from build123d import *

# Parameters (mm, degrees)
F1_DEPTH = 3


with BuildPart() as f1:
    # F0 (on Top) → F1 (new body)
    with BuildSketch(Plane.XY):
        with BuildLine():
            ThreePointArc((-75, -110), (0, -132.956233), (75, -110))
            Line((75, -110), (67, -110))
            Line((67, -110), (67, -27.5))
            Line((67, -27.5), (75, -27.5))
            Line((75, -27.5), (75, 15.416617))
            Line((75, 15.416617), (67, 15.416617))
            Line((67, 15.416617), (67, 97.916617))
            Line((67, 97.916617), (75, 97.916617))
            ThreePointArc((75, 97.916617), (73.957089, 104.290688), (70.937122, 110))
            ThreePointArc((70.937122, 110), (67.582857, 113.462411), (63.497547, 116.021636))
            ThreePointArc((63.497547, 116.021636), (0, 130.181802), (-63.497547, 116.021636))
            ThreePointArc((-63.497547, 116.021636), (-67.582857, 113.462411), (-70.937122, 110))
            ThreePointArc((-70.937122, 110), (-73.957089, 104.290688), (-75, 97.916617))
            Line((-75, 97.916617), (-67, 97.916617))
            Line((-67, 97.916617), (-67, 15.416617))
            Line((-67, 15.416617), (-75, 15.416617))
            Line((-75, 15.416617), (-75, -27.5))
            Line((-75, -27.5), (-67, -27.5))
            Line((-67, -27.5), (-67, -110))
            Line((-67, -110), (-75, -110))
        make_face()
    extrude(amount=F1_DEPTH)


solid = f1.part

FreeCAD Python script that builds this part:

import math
import FreeCAD as App
import Part
import Sketcher
from FreeCAD import Vector
Q = App.Units.Quantity

doc = App.newDocument("Part")
body = doc.addObject("PartDesign::Body", "Body")

# Sketch on XY plane
sketch1 = doc.addObject("Sketcher::SketchObject", "Sketch")
body.addObject(sketch1)
sketch1.AttachmentSupport = (doc.XY_Plane, [""])
sketch1.MapMode = "FlatFace"
sketch1.addGeometry([
    Part.ArcOfCircle(Part.Circle(Vector(0, 1, 0), Vector(0, 0, 1), 134), math.radians(-124), math.radians(-56)),  # 0
    Part.LineSegment(Vector(75, -110, 0), Vector(67, -110, 0)),  # 1
    Part.LineSegment(Vector(67, -110, 0), Vector(67, -28, 0)),  # 2
    Part.LineSegment(Vector(67, -28, 0), Vector(75, -28, 0)),  # 3
    Part.LineSegment(Vector(75, -28, 0), Vector(75, 15, 0)),  # 4
    Part.LineSegment(Vector(75, 15, 0), Vector(67, 15, 0)),  # 5
    Part.LineSegment(Vector(67, 15, 0), Vector(67, 98, 0)),  # 6
    Part.LineSegment(Vector(67, 98, 0), Vector(75, 98, 0)),  # 7
    Part.ArcOfCircle(Part.Circle(Vector(55, 98, 0), Vector(0, 0, 1), 20), math.radians(0), math.radians(37)),  # 8
    Part.ArcOfCircle(Part.Circle(Vector(55, 98, 0), Vector(0, 0, 1), 20), math.radians(37), math.radians(65)),  # 9
    Part.ArcOfCircle(Part.Circle(Vector(0, -19, 0), Vector(0, 0, 1), 149), math.radians(65), math.radians(115)),  # 10
    Part.ArcOfCircle(Part.Circle(Vector(-55, 98, 0), Vector(0, 0, 1), 20), math.radians(115), math.radians(143)),  # 11
    Part.ArcOfCircle(Part.Circle(Vector(-55, 98, 0), Vector(0, 0, 1), 20), math.radians(143), math.radians(180)),  # 12
    Part.LineSegment(Vector(-75, 98, 0), Vector(-67, 98, 0)),  # 13
    Part.LineSegment(Vector(-67, 98, 0), Vector(-67, 15, 0)),  # 14
    Part.LineSegment(Vector(-67, 15, 0), Vector(-75, 15, 0)),  # 15
    Part.LineSegment(Vector(-75, 15, 0), Vector(-75, -28, 0)),  # 16
    Part.LineSegment(Vector(-75, -28, 0), Vector(-67, -28, 0)),  # 17
    Part.LineSegment(Vector(-67, -28, 0), Vector(-67, -110, 0)),  # 18
    Part.LineSegment(Vector(-67, -110, 0), Vector(-75, -110, 0)),  # 19
], False)
sketch1.addConstraint([
    Sketcher.Constraint("Coincident", 0, 2, 1, 1),
    Sketcher.Constraint("Coincident", 1, 2, 2, 1),
    Sketcher.Constraint("Coincident", 2, 2, 3, 1),
    Sketcher.Constraint("Coincident", 3, 2, 4, 1),
    Sketcher.Constraint("Coincident", 4, 2, 5, 1),
    Sketcher.Constraint("Coincident", 5, 2, 6, 1),
    Sketcher.Constraint("Coincident", 6, 2, 7, 1),
    Sketcher.Constraint("Coincident", 7, 2, 8, 1),
    Sketcher.Constraint("Tangent", 8, 2, 9, 1),
    Sketcher.Constraint("Tangent", 9, 2, 10, 1),
    Sketcher.Constraint("Tangent", 10, 2, 11, 1),
    Sketcher.Constraint("Tangent", 11, 2, 12, 1),
    Sketcher.Constraint("Coincident", 12, 2, 13, 1),
    Sketcher.Constraint("Coincident", 13, 2, 14, 1),
    Sketcher.Constraint("Coincident", 14, 2, 15, 1),
    Sketcher.Constraint("Coincident", 15, 2, 16, 1),
    Sketcher.Constraint("Coincident", 16, 2, 17, 1),
    Sketcher.Constraint("Coincident", 17, 2, 18, 1),
    Sketcher.Constraint("Coincident", 18, 2, 19, 1),
    Sketcher.Constraint("Coincident", 19, 2, 0, 1),
    Sketcher.Constraint("Horizontal", 1),
    Sketcher.Constraint("Vertical", 2),
    Sketcher.Constraint("Horizontal", 3),
    Sketcher.Constraint("Vertical", 4),
    Sketcher.Constraint("Horizontal", 5),
    Sketcher.Constraint("Vertical", 6),
    Sketcher.Constraint("Horizontal", 7),
    Sketcher.Constraint("Horizontal", 13),
    Sketcher.Constraint("Vertical", 14),
    Sketcher.Constraint("Horizontal", 15),
    Sketcher.Constraint("Vertical", 16),
    Sketcher.Constraint("Horizontal", 17),
    Sketcher.Constraint("Vertical", 18),
    Sketcher.Constraint("Horizontal", 19),
    Sketcher.Constraint("Equal", 9, 11),
    Sketcher.Constraint("Equal", 8, 12),
    Sketcher.Constraint("Symmetric", 8, 3, 11, 3, -2),
    Sketcher.Constraint("Symmetric", 8, 2, 11, 2, -2),
    Sketcher.Constraint("Symmetric", 6, 2, 13, 2, -2),
    Sketcher.Constraint("Symmetric", 4, 2, 15, 2, -2),
    Sketcher.Constraint("Symmetric", 2, 2, 17, 2, -2),
    Sketcher.Constraint("Symmetric", 0, 2, 19, 2, -2),
    Sketcher.Constraint("Horizontal", 12, 3, 6, 2),
    Sketcher.Constraint("Vertical", 0, 2, 3, 2),
    Sketcher.Constraint("Vertical", 2, 2, 5, 2),
    Sketcher.Constraint("Vertical", 4, 2, 7, 2),
    Sketcher.Constraint("Equal", 2, 6),
    Sketcher.Constraint("Radius", 8, Q("19.999999 mm")),
    Sketcher.Constraint("DistanceX", 1, 2, 1, 1, Q("8 mm")),
    Sketcher.Constraint("DistanceY", 2, 1, 2, 2, Q("82.5 mm")),
    Sketcher.Constraint("DistanceX", -1, 1, 8, 3, Q("55.000001 mm")),
    Sketcher.Constraint("DistanceY", 0, 2, -1, 1, Q("110 mm")),
    Sketcher.Constraint("DistanceY", -1, 1, 8, 2, Q("110 mm")),
    Sketcher.Constraint("Radius", 0, Q("133.993862 mm")),
    Sketcher.Constraint("Radius", 10, Q("149.449123 mm")),
    Sketcher.Constraint("DistanceY", 4, 1, 4, 2, Q("42.916617 mm")),
])
pad1 = doc.addObject("PartDesign::Pad", "Pad")
body.addObject(pad1)
pad1.Profile = sketch1
pad1.Length = 3

doc.recompute()
